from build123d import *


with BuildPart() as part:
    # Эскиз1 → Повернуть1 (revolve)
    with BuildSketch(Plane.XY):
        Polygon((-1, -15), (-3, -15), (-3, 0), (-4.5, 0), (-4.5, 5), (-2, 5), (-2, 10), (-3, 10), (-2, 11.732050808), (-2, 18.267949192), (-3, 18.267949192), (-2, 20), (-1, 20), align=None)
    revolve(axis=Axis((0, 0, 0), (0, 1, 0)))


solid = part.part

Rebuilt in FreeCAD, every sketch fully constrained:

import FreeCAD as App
import Part
import Sketcher

V = App.Vector
Q = App.Units.Quantity

doc = App.newDocument("Part")
body = doc.addObject("PartDesign::Body", "Body")

sketch1 = body.newObject("Sketcher::SketchObject", "Sketch")
sketch1.AttachmentSupport = (doc.getObject("XY_Plane"), [""])
sketch1.MapMode = "FlatFace"
sketch1.addGeometry([
    Part.LineSegment(V(-3, -15, 0), V(-1, -15, 0)),
    Part.LineSegment(V(-1, -15, 0), V(-1, 20, 0)),
    Part.LineSegment(V(-1, 20, 0), V(-2, 20, 0)),
    Part.LineSegment(V(-2, 20, 0), V(-3, 18.3, 0)),
    Part.LineSegment(V(-3, 18.3, 0), V(-2, 18.3, 0)),
    Part.LineSegment(V(-2, 18.3, 0), V(-2, 11.7, 0)),
    Part.LineSegment(V(-2, 11.7, 0), V(-3, 10, 0)),
    Part.LineSegment(V(-3, 10, 0), V(-2, 10, 0)),
    Part.LineSegment(V(-2, 10, 0), V(-2, 5, 0)),
    Part.LineSegment(V(-2, 5, 0), V(-4.5, 5, 0)),
    Part.LineSegment(V(-4.5, 5, 0), V(-4.5, 0, 0)),
    Part.LineSegment(V(-4.5, 0, 0), V(-3, 0, 0)),
    Part.LineSegment(V(-3, 0, 0), V(-3, -15, 0)),
], False)
sketch1.addConstraint([
    Sketcher.Constraint("Coincident", 0, 2, 1, 1),
    Sketcher.Constraint("Coincident", 1, 2, 2, 1),
    Sketcher.Constraint("Coincident", 2, 2, 3, 1),
    Sketcher.Constraint("Coincident", 3, 2, 4, 1),
    Sketcher.Constraint("Coincident", 4, 2, 5, 1),
    Sketcher.Constraint("Coincident", 5, 2, 6, 1),
    Sketcher.Constraint("Coincident", 6, 2, 7, 1),
    Sketcher.Constraint("Coincident", 7, 2, 8, 1),
    Sketcher.Constraint("Coincident", 8, 2, 9, 1),
    Sketcher.Constraint("Coincident", 9, 2, 10, 1),
    Sketcher.Constraint("Coincident", 10, 2, 11, 1),
    Sketcher.Constraint("Coincident", 11, 2, 12, 1),
    Sketcher.Constraint("Coincident", 12, 2, 0, 1),
    Sketcher.Constraint("Horizontal", 0),
    Sketcher.Constraint("Vertical", 1),
    Sketcher.Constraint("Horizontal", 2),
    Sketcher.Constraint("Horizontal", 4),
    Sketcher.Constraint("Vertical", 5),
    Sketcher.Constraint("Horizontal", 7),
    Sketcher.Constraint("Vertical", 8),
    Sketcher.Constraint("Horizontal", 9),
    Sketcher.Constraint("Vertical", 10),
    Sketcher.Constraint("Horizontal", 11),
    Sketcher.Constraint("Vertical", 12),
    Sketcher.Constraint("PointOnObject", 10, 2, -1),
    Sketcher.Constraint("Parallel", 3, 6),
    Sketcher.Constraint("Vertical", 2, 2, 4, 2),
    Sketcher.Constraint("Vertical", 3, 2, 6, 2),
    Sketcher.Constraint("Vertical", 5, 2, 7, 2),
    Sketcher.Constraint("Vertical", 6, 2, 11, 2),
    Sketcher.Constraint("Equal", 2, 4),
    Sketcher.Constraint("Equal", 8, 10),
    Sketcher.Constraint("DistanceX", 0, 1, 0, 2, Q("2 mm")),
    Sketcher.Constraint("DistanceY", 1, 1, 1, 2, Q("35 mm")),
    Sketcher.Constraint("DistanceY", 8, 2, 8, 1, Q("5 mm")),
    Sketcher.Constraint("DistanceY", 12, 2, 12, 1, Q("15 mm")),
    Sketcher.Constraint("Angle", 3, Q("-120 deg")),
    Sketcher.Constraint("DistanceX", 9, 2, 9, 1, Q("2.5 mm")),
    Sketcher.Constraint("DistanceX", 0, 2, -1, 1, Q("1 mm")),
])
revolution = body.newObject("PartDesign::Revolution", "Revolution")
revolution.Profile = sketch1
revolution.ReferenceAxis = (sketch1, ["V_Axis"])
revolution.Angle = 360

doc.recompute()
